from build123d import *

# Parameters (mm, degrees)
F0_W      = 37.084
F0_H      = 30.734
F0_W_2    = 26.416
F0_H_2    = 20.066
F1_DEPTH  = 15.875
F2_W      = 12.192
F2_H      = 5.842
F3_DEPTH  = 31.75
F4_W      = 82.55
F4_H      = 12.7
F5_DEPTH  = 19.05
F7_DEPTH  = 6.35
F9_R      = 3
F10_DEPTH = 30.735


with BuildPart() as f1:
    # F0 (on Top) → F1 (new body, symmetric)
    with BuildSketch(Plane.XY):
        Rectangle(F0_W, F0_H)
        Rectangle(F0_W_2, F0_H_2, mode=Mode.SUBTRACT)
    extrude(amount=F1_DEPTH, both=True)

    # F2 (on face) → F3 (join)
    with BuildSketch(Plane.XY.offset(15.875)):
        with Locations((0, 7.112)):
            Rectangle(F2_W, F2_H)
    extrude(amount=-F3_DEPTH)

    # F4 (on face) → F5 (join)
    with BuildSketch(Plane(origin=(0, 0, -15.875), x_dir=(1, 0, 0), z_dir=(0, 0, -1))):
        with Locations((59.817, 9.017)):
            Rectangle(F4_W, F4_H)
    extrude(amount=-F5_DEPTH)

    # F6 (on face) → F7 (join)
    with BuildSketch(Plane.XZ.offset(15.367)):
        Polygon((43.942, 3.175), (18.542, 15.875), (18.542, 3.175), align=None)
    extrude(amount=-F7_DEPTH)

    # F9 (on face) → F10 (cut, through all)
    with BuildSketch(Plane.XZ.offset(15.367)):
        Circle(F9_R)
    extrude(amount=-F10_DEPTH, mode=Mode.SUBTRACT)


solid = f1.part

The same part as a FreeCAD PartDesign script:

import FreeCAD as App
import Part
import Sketcher

V = App.Vector
Q = App.Units.Quantity

doc = App.newDocument("Part")
params = doc.addObject("Spreadsheet::Sheet", "Params")
for row, (alias, value) in enumerate([
    ("sketch1_width", "1.46 in"),
    ("sketch1_width2", "1.04 in"),
    ("sketch1_height", "1.21 in"),
    ("pad1_length", "1.25 in"),
    ("sketch2_width", "0.48 in"),
    ("sketch2_height", "0.23 in"),
    ("pad2_length", "1.25 in"),
    ("sketch3_height", "0.5 in"),
    ("sketch3_width", "3.25 in"),
    ("pad3_length", "0.75 in"),
    ("sketch4_width", "1 in"),
    ("sketch4_height", "0.5 in"),
    ("pad4_length", "0.25 in"),
], start=1):
    params.set(f"A{row}", alias)
    params.set(f"B{row}", "=" + value)
    params.setAlias(f"B{row}", alias)

body = doc.addObject("PartDesign::Body", "Body")

sketch1 = body.newObject("Sketcher::SketchObject", "Sketch")
sketch1.AttachmentSupport = (doc.getObject("XY_Plane"), [""])
sketch1.MapMode = "FlatFace"
sketch1.addGeometry([
    Part.LineSegment(V(-19, 15, 0), V(-19, -15, 0)),
    Part.LineSegment(V(-19, -15, 0), V(19, -15, 0)),
    Part.LineSegment(V(19, -15, 0), V(19, 15, 0)),
    Part.LineSegment(V(19, 15, 0), V(-19, 15, 0)),
    Part.LineSegment(V(13, -10, 0), V(-13, -10, 0)),
    Part.LineSegment(V(-13, -10, 0), V(-13, 10, 0)),
    Part.LineSegment(V(-13, 10, 0), V(13, 10, 0)),
    Part.LineSegment(V(13, 10, 0), V(13, -10, 0)),
], False)
sketch1.addConstraint([
    Sketcher.Constraint("Coincident", 0, 2, 1, 1),
    Sketcher.Constraint("Coincident", 1, 2, 2, 1),
    Sketcher.Constraint("Coincident", 2, 2, 3, 1),
    Sketcher.Constraint("Coincident", 3, 2, 0, 1),
    Sketcher.Constraint("Coincident", 4, 2, 5, 1),
    Sketcher.Constraint("Coincident", 5, 2, 6, 1),
    Sketcher.Constraint("Coincident", 6, 2, 7, 1),
    Sketcher.Constraint("Coincident", 7, 2, 4, 1),
    Sketcher.Constraint("Vertical", 0),
    Sketcher.Constraint("Horizontal", 1),
    Sketcher.Constraint("Vertical", 2),
    Sketcher.Constraint("Horizontal", 3),
    Sketcher.Constraint("Horizontal", 4),
    Sketcher.Constraint("Vertical", 5),
    Sketcher.Constraint("Horizontal", 6),
    Sketcher.Constraint("Vertical", 7),
    Sketcher.Constraint("Symmetric", 0, 2, 2, 2, -1, 1),
    Sketcher.Constraint("Symmetric", 4, 2, 6, 2, -1, 1),
    Sketcher.Constraint("DistanceY", 4, 2, 3, 2, Q("1 in")),
    Sketcher.Constraint("DistanceX", 1, 1, 1, 2, Q("1.46 in")),
    Sketcher.Constraint("DistanceX", 4, 2, 4, 1, Q("1.04 in")),
    Sketcher.Constraint("DistanceY", 0, 2, 0, 1, Q("1.21 in")),
])
sketch1.setExpression("Constraints[19]", "Params.sketch1_width")
sketch1.setExpression("Constraints[20]", "Params.sketch1_width2")
sketch1.setExpression("Constraints[21]", "Params.sketch1_height")
pad1 = body.newObject("PartDesign::Pad", "Pad")
pad1.Profile = sketch1
pad1.setExpression("Length", "Params.pad1_length")
pad1.Midplane = True

sketch2 = body.newObject("Sketcher::SketchObject", "Sketch001")
sketch2.AttachmentSupport = (doc.getObject("XY_Plane"), [""])
sketch2.MapMode = "FlatFace"
sketch2.AttachmentOffset = App.Placement(V(0, 0, 0.625 * 25.4), App.Rotation())
sketch2.addGeometry([
    Part.LineSegment(V(-6, 10, 0), V(-6, 4, 0)),
    Part.LineSegment(V(-6, 4, 0), V(6, 4, 0)),
    Part.LineSegment(V(6, 4, 0), V(6, 10, 0)),
    Part.LineSegment(V(6, 10, 0), V(-6, 10, 0)),
], False)
sketch2.addConstraint([
    Sketcher.Constraint("Coincident", 0, 2, 1, 1),
    Sketcher.Constraint("Coincident", 1, 2, 2, 1),
    Sketcher.Constraint("Coincident", 2, 2, 3, 1),
    Sketcher.Constraint("Coincident", 3, 2, 0, 1),
    Sketcher.Constraint("Vertical", 0),
    Sketcher.Constraint("Horizontal", 1),
    Sketcher.Constraint("Vertical", 2),
    Sketcher.Constraint("Horizontal", 3),
    Sketcher.Constraint("DistanceX", 1, 1, 1, 2, Q("0.48 in")),
    Sketcher.Constraint("DistanceY", 0, 2, 0, 1, Q("0.23 in")),
    Sketcher.Constraint("DistanceX", 0, 2, -1, 1, Q("0.24 in")),
    Sketcher.Constraint("DistanceY", -1, 1, 0, 2, Q("0.165 in")),
])
sketch2.setExpression("Constraints[8]", "Params.sketch2_width")
sketch2.setExpression("Constraints[9]", "Params.sketch2_height")
pad2 = body.newObject("PartDesign::Pad", "Pad001")
pad2.Profile = sketch2
pad2.setExpression("Length", "Params.pad2_length")
pad2.Reversed = True

sketch3 = body.newObject("Sketcher::SketchObject", "Sketch002")
sketch3.AttachmentSupport = (doc.getObject("XY_Plane"), [""])
sketch3.MapMode = "FlatFace"
sketch3.AttachmentOffset = App.Placement(V(0, 0, -0.625 * 25.4), App.Rotation())
sketch3.addGeometry([
    Part.LineSegment(V(19, -15, 0), V(19, -3, 0)),
    Part.LineSegment(V(19, -3, 0), V(101, -3, 0)),
    Part.LineSegment(V(101, -3, 0), V(101, -15, 0)),
    Part.LineSegment(V(101, -15, 0), V(19, -15, 0)),
], False)
sketch3.addConstraint([
    Sketcher.Constraint("Coincident", 0, 2, 1, 1),
    Sketcher.Constraint("Coincident", 1, 2, 2, 1),
    Sketcher.Constraint("Coincident", 2, 2, 3, 1),
    Sketcher.Constraint("Coincident", 3, 2, 0, 1),
    Sketcher.Constraint("Vertical", 0),
    Sketcher.Constraint("Horizontal", 1),
    Sketcher.Constraint("Vertical", 2),
    Sketcher.Constraint("Horizontal", 3),
    Sketcher.Constraint("DistanceY", 0, 1, 0, 2, Q("0.5 in")),
    Sketcher.Constraint("DistanceX", 1, 1, 1, 2, Q("3.25 in")),
    Sketcher.Constraint("DistanceX", -1, 1, 0, 2, Q("0.73 in")),
    Sketcher.Constraint("DistanceY", 0, 2, -1, 1, Q("0.105 in")),
])
sketch3.setExpression("Constraints[8]", "Params.sketch3_height")
sketch3.setExpression("Constraints[9]", "Params.sketch3_width")
pad3 = body.newObject("PartDesign::Pad", "Pad002")
pad3.Profile = sketch3
pad3.setExpression("Length", "Params.pad3_length")

sketch4 = body.newObject("Sketcher::SketchObject", "Sketch003")
sketch4.AttachmentSupport = (doc.getObject("XZ_Plane"), [""])
sketch4.MapMode = "FlatFace"
sketch4.AttachmentOffset = App.Placement(V(0, 0, 0.605 * 25.4), App.Rotation())
sketch4.addGeometry([
    Part.LineSegment(V(44, 3, 0), V(19, 16, 0)),
    Part.LineSegment(V(19, 16, 0), V(19, 3, 0)),
    Part.LineSegment(V(19, 3, 0), V(44, 3, 0)),
], False)
sketch4.addConstraint([
    Sketcher.Constraint("Coincident", 0, 2, 1, 1),
    Sketcher.Constraint("Coincident", 1, 2, 2, 1),
    Sketcher.Constraint("Coincident", 2, 2, 0, 1),
    Sketcher.Constraint("Vertical", 1),
    Sketcher.Constraint("Horizontal", 2),
    Sketcher.Constraint("DistanceX", 2, 1, 2, 2, Q("1 in")),
    Sketcher.Constraint("DistanceY", 1, 2, 1, 1, Q("0.5 in")),
    Sketcher.Constraint("DistanceX", -1, 1, 0, 2, Q("0.73 in")),
    Sketcher.Constraint("DistanceY", -1, 1, 0, 2, Q("0.625 in")),
])
sketch4.setExpression("Constraints[5]", "Params.sketch4_width")
sketch4.setExpression("Constraints[6]", "Params.sketch4_height")
pad4 = body.newObject("PartDesign::Pad", "Pad003")
pad4.Profile = sketch4
pad4.setExpression("Length", "Params.pad4_length")
pad4.Reversed = True

sketch5 = body.newObject("Sketcher::SketchObject", "Sketch004")
sketch5.AttachmentSupport = (doc.getObject("XZ_Plane"), [""])
sketch5.MapMode = "FlatFace"
sketch5.AttachmentOffset = App.Placement(V(0, 0, 0.605 * 25.4), App.Rotation())
sketch5.addGeometry(Part.Circle(V(0, 0, 0), V(0, 0, 1), 3), False)
sketch5.addConstraint([
    Sketcher.Constraint("Coincident", 0, 3, -1, 1),
    Sketcher.Constraint("Diameter", 0, 6.0),
])
pocket1 = body.newObject("PartDesign::Pocket", "Pocket")
pocket1.Profile = sketch5
pocket1.Type = "ThroughAll"

doc.recompute()
